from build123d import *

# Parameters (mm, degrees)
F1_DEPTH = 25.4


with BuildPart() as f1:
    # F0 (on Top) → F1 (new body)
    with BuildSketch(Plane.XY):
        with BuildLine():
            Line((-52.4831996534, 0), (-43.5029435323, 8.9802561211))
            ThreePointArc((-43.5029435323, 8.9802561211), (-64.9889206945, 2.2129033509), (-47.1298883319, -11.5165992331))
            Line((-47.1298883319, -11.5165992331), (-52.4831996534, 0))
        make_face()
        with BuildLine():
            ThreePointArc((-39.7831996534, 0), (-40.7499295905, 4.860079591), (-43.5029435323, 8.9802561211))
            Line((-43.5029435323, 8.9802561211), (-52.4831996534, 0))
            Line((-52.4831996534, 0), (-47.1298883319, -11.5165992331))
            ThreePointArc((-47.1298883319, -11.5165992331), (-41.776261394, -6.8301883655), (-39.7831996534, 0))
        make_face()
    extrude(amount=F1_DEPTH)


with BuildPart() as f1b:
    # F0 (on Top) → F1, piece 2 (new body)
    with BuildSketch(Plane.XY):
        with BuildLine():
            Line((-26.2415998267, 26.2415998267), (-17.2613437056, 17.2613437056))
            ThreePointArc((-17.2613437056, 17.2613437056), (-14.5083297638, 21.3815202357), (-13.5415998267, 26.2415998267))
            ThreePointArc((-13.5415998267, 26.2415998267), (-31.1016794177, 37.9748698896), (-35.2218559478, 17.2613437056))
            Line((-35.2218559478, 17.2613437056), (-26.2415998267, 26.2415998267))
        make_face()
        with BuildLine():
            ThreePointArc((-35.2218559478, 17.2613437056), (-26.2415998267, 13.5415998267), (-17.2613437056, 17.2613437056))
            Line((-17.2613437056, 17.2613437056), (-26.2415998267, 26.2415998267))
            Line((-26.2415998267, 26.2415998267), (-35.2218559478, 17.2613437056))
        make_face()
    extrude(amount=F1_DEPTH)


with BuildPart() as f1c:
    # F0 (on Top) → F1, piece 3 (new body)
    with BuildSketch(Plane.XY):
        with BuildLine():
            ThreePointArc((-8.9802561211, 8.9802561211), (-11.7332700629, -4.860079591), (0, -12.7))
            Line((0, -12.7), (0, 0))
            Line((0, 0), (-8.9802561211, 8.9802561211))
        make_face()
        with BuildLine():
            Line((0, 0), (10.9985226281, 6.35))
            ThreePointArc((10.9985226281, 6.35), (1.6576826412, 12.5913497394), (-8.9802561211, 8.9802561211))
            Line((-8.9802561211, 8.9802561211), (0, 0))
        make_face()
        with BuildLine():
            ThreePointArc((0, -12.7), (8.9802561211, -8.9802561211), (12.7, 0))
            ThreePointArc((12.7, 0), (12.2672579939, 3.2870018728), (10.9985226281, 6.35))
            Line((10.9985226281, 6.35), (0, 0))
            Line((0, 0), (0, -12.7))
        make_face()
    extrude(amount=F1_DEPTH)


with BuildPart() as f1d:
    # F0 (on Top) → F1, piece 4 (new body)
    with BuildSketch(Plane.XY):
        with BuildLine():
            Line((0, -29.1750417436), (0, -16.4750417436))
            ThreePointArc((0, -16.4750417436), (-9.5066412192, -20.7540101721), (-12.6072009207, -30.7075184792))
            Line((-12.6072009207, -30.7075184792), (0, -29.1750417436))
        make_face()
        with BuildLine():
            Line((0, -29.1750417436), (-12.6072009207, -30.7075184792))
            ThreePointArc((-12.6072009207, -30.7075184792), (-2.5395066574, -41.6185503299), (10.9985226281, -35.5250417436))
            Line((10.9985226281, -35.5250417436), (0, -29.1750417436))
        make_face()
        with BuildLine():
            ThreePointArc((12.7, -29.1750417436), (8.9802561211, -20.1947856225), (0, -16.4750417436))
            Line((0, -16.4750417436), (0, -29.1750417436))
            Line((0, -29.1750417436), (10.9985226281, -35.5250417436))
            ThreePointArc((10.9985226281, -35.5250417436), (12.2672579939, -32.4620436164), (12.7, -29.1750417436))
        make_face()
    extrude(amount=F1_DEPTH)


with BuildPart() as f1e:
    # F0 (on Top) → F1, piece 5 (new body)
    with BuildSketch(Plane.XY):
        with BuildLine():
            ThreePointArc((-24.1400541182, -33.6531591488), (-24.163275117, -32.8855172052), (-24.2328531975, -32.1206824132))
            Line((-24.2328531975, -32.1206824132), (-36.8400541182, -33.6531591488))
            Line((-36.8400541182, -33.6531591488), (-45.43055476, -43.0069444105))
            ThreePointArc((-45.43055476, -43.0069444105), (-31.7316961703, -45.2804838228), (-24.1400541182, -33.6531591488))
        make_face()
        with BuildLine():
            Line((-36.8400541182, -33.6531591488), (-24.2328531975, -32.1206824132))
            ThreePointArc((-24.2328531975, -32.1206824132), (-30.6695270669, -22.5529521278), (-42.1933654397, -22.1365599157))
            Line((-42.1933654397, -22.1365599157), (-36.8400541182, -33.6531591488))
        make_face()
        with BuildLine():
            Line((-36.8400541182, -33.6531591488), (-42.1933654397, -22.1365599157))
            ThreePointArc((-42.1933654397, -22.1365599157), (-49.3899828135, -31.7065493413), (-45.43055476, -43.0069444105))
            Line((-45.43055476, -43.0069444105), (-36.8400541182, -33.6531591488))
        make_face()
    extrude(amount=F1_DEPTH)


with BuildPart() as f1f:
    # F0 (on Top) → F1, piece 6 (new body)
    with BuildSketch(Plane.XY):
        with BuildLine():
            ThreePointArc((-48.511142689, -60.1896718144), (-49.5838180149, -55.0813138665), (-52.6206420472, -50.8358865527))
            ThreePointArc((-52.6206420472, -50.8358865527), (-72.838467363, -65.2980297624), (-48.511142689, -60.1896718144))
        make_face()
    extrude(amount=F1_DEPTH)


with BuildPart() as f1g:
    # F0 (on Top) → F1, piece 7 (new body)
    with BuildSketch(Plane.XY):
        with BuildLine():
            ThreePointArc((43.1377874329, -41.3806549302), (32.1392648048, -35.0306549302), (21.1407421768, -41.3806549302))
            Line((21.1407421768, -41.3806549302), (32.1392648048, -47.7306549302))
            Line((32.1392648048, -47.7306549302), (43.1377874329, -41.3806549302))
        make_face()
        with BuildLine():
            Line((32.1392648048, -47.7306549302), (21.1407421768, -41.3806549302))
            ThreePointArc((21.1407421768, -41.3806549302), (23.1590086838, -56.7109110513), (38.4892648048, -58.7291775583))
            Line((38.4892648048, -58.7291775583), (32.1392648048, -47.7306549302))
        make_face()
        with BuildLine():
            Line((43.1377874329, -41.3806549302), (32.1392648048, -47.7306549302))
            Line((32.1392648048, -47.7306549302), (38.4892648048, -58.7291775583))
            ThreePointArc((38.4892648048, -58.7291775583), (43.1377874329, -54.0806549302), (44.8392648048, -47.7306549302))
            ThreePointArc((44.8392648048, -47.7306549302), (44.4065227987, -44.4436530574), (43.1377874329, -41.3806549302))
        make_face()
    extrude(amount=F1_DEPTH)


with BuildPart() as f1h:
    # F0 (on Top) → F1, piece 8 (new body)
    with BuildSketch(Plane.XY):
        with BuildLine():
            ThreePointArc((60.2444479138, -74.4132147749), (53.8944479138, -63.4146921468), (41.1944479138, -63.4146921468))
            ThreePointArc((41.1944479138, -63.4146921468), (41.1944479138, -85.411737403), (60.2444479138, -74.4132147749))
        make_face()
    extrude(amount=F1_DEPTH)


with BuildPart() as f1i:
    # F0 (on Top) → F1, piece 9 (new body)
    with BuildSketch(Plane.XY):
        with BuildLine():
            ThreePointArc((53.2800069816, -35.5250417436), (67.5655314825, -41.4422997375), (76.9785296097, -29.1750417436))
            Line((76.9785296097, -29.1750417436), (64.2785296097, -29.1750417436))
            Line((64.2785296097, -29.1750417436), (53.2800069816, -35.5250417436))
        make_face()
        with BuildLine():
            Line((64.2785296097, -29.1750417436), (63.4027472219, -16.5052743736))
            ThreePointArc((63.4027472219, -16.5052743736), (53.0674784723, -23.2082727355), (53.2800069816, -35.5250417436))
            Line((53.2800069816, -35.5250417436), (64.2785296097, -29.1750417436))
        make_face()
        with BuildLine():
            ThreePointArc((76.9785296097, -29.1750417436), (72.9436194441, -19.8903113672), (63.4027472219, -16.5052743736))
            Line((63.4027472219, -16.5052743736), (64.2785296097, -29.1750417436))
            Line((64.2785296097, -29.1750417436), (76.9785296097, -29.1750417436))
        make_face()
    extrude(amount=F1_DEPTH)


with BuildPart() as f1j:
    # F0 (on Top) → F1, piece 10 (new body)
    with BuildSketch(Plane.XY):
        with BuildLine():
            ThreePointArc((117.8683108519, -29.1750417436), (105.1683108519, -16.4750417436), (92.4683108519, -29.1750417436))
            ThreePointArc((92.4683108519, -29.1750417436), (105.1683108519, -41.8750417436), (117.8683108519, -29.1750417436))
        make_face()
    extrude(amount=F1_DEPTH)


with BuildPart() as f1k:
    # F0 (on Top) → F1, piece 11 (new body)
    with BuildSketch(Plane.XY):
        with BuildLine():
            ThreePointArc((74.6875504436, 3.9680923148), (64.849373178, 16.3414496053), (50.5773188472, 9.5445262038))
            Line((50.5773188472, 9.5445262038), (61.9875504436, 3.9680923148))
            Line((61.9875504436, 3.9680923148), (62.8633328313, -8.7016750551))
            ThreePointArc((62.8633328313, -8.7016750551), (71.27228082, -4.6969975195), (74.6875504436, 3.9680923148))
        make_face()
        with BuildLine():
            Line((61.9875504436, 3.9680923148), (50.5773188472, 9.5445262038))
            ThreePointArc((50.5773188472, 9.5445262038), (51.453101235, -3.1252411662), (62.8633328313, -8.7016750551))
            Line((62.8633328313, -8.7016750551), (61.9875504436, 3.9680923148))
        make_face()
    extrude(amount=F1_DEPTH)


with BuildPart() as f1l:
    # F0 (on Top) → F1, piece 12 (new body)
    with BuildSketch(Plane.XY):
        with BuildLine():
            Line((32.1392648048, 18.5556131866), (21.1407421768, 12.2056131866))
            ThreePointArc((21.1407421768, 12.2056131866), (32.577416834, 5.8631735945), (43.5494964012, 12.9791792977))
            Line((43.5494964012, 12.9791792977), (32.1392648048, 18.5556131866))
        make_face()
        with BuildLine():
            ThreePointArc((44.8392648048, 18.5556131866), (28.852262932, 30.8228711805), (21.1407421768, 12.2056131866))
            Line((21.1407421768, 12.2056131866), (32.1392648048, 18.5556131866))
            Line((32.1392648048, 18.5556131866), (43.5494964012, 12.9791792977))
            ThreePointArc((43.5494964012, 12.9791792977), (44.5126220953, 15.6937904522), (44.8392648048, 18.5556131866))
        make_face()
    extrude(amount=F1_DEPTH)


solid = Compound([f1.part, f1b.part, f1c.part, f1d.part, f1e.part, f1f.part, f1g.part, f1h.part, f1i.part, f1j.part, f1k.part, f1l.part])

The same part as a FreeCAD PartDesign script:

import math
import FreeCAD as App
import Part
import Sketcher
Q = App.Units.Quantity

doc = App.newDocument("Part")
body = doc.addObject("PartDesign::Body", "Body")

# Sketch on XY plane
sketch1 = body.newObject("Sketcher::SketchObject", "Sketch")
sketch1.AttachmentSupport = (doc.getObject("XY_Plane"), [""])
sketch1.MapMode = "FlatFace"
sketch1.addGeometry([
    Part.ArcOfCircle(Part.Circle(App.Vector(-52, 0, 0), App.Vector(0, 0, 1), 13), math.radians(45), math.radians(295)),
    Part.ArcOfCircle(Part.Circle(App.Vector(-52, 0, 0), App.Vector(0, 0, 1), 13), math.radians(-65), math.radians(0)),
    Part.ArcOfCircle(Part.Circle(App.Vector(-52, 0, 0), App.Vector(0, 0, 1), 13), math.radians(0), math.radians(45)),
], False)
sketch1.addConstraint([
    Sketcher.Constraint("Tangent", 0, 2, 1, 1),
    Sketcher.Constraint("Tangent", 1, 2, 2, 1),
    Sketcher.Constraint("Tangent", 2, 2, 0, 1),
    Sketcher.Constraint("PointOnObject", 0, 3, -1),
    Sketcher.Constraint("PointOnObject", 1, 2, -1),
    Sketcher.Constraint("Radius", 0, Q("0.5 in")),
    Sketcher.Constraint("DistanceX", 0, 3, -1, 1, 52.4832),
    Sketcher.Constraint("DistanceY", 0, 2, -1, 1, 11.516599),
    Sketcher.Constraint("DistanceX", 2, 2, -1, 1, 43.502944),
])
pad1 = body.newObject("PartDesign::Pad", "Pad")
pad1.Profile = sketch1
pad1.Length = Q("1 in")
body2 = doc.addObject("PartDesign::Body", "Body001")

# Sketch on XY plane
sketch2 = body2.newObject("Sketcher::SketchObject", "Sketch001")
sketch2.AttachmentSupport = (doc.getObject("XY_Plane001"), [""])
sketch2.MapMode = "FlatFace"
sketch2.addGeometry([
    Part.ArcOfCircle(Part.Circle(App.Vector(-26, 26, 0), App.Vector(0, 0, 1), 13), math.radians(-45), math.radians(0)),
    Part.ArcOfCircle(Part.Circle(App.Vector(-26, 26, 0), App.Vector(0, 0, 1), 13), math.radians(0), math.radians(225)),
    Part.ArcOfCircle(Part.Circle(App.Vector(-26, 26, 0), App.Vector(0, 0, 1), 13), math.radians(-135), math.radians(-45)),
], False)
sketch2.addConstraint([
    Sketcher.Constraint("Tangent", 0, 2, 1, 1),
    Sketcher.Constraint("Tangent", 1, 2, 2, 1),
    Sketcher.Constraint("Tangent", 2, 2, 0, 1),
    Sketcher.Constraint("Horizontal", 2, 3, 0, 2),
    Sketcher.Constraint("Horizontal", 1, 2, 2, 2),
    Sketcher.Constraint("Radius", 0, Q("0.5 in")),
    Sketcher.Constraint("DistanceX", 0, 3, -1, 1, 26.2416),
    Sketcher.Constraint("DistanceY", -1, 1, 0, 3, 26.2416),
    Sketcher.Constraint("DistanceX", 1, 2, -1, 1, 35.221856),
])
pad2 = body2.newObject("PartDesign::Pad", "Pad001")
pad2.Profile = sketch2
pad2.Length = Q("1 in")
body3 = doc.addObject("PartDesign::Body", "Body002")

# Sketch on XY plane
sketch3 = body3.newObject("Sketcher::SketchObject", "Sketch002")
sketch3.AttachmentSupport = (doc.getObject("XY_Plane002"), [""])
sketch3.MapMode = "FlatFace"
sketch3.addGeometry([
    Part.ArcOfCircle(Part.Circle(App.Vector(0, 0, 0), App.Vector(0, 0, 1), 13), math.radians(135), math.radians(270)),
    Part.ArcOfCircle(Part.Circle(App.Vector(0, 0, 0), App.Vector(0, 0, 1), 13), math.radians(-90), math.radians(0)),
    Part.ArcOfCircle(Part.Circle(App.Vector(0, 0, 0), App.Vector(0, 0, 1), 13), math.radians(0), math.radians(30)),
    Part.ArcOfCircle(Part.Circle(App.Vector(0, 0, 0), App.Vector(0, 0, 1), 13), math.radians(30), math.radians(135)),
], False)
sketch3.addConstraint([
    Sketcher.Constraint("Tangent", 0, 2, 1, 1),
    Sketcher.Constraint("Tangent", 1, 2, 2, 1),
    Sketcher.Constraint("Tangent", 2, 2, 3, 1),
    Sketcher.Constraint("Tangent", 3, 2, 0, 1),
    Sketcher.Constraint("Coincident", 0, 3, -1, 1),
    Sketcher.Constraint("Equal", 0, 1),
    Sketcher.Constraint("PointOnObject", 0, 2, -2),
    Sketcher.Constraint("PointOnObject", 1, 2, -1),
    Sketcher.Constraint("Radius", 0, Q("0.5 in")),
    Sketcher.Constraint("DistanceY", -1, 1, 2, 2, Q("0.25 in")),
    Sketcher.Constraint("DistanceX", 3, 2, 2, 2, 19.978779),
])
pad3 = body3.newObject("PartDesign::Pad", "Pad002")
pad3.Profile = sketch3
pad3.Length = Q("1 in")
body4 = doc.addObject("PartDesign::Body", "Body003")

# Sketch on XY plane
sketch4 = body4.newObject("Sketcher::SketchObject", "Sketch003")
sketch4.AttachmentSupport = (doc.getObject("XY_Plane003"), [""])
sketch4.MapMode = "FlatFace"
sketch4.addGeometry([
    Part.ArcOfCircle(Part.Circle(App.Vector(0, -29, 0), App.Vector(0, 0, 1), 13), math.radians(-173), math.radians(0)),
    Part.ArcOfCircle(Part.Circle(App.Vector(0, -29, 0), App.Vector(0, 0, 1), 13), math.radians(0), math.radians(187)),
], False)
sketch4.addConstraint([
    Sketcher.Constraint("Tangent", 0, 1, 1, 2),
    Sketcher.Constraint("Coincident", 1, 1, 0, 2),
    Sketcher.Constraint("PointOnObject", 0, 3, -2),
    Sketcher.Constraint("Horizontal", 0, 3, 1, 1),
    Sketcher.Constraint("Radius", 0, Q("0.5 in")),
    Sketcher.Constraint("DistanceX", 0, 1, -1, 1, 12.607201),
    Sketcher.Constraint("DistanceY", 0, 3, -1, 1, 29.175042),
])
pad4 = body4.newObject("PartDesign::Pad", "Pad003")
pad4.Profile = sketch4
pad4.Length = Q("1 in")
body5 = doc.addObject("PartDesign::Body", "Body004")

# Sketch on XY plane
sketch5 = body5.newObject("Sketcher::SketchObject", "Sketch004")
sketch5.AttachmentSupport = (doc.getObject("XY_Plane004"), [""])
sketch5.MapMode = "FlatFace"
sketch5.addGeometry([
    Part.ArcOfCircle(Part.Circle(App.Vector(-36.8, -33.7, 0), App.Vector(0, 0, 1), 12.7), math.radians(0), math.radians(6.93)),
    Part.ArcOfCircle(Part.Circle(App.Vector(-36.8, -33.7, 0), App.Vector(0, 0, 1), 12.7), math.radians(7), math.radians(115)),
    Part.ArcOfCircle(Part.Circle(App.Vector(-36.8, -33.7, 0), App.Vector(0, 0, 1), 12.7), math.radians(115), math.radians(227)),
    Part.ArcOfCircle(Part.Circle(App.Vector(-36.8, -33.7, 0), App.Vector(0, 0, 1), 12.7), math.radians(-133), math.radians(0)),
], False)
sketch5.addConstraint([
    Sketcher.Constraint("Tangent", 0, 2, 1, 1),
    Sketcher.Constraint("Tangent", 1, 2, 2, 1),
    Sketcher.Constraint("Tangent", 2, 2, 3, 1),
    Sketcher.Constraint("Tangent", 3, 2, 0, 1),
    Sketcher.Constraint("Equal", 0, 1),
    Sketcher.Constraint("Horizontal", 2, 3, 3, 2),
    Sketcher.Constraint("Radius", 0, Q("0.5 in")),
    Sketcher.Constraint("DistanceX", 1, 3, 0, 2, 12.607201),
    Sketcher.Constraint("DistanceY", 0, 3, 1, 2, 11.516599),
    Sketcher.Constraint("DistanceX", 2, 2, 0, 3, 8.590501),
    Sketcher.Constraint("DistanceY", 0, 3, -1, 1, 33.653159),
    Sketcher.Constraint("DistanceX", 0, 3, -1, 1, 36.840054),
])
pad5 = body5.newObject("PartDesign::Pad", "Pad004")
pad5.Profile = sketch5
pad5.Length = Q("1 in")
body6 = doc.addObject("PartDesign::Body", "Body005")

# Sketch on XY plane
sketch6 = body6.newObject("Sketcher::SketchObject", "Sketch005")
sketch6.AttachmentSupport = (doc.getObject("XY_Plane005"), [""])
sketch6.MapMode = "FlatFace"
sketch6.addGeometry([
    Part.ArcOfCircle(Part.Circle(App.Vector(-61, -60, 0), App.Vector(0, 0, 1), 13), math.radians(0), math.radians(47)),
    Part.ArcOfCircle(Part.Circle(App.Vector(-61, -60, 0), App.Vector(0, 0, 1), 13), math.radians(47), math.radians(360)),
], False)
sketch6.addConstraint([
    Sketcher.Constraint("Tangent", 0, 1, 1, 2),
    Sketcher.Constraint("Coincident", 1, 1, 0, 2),
    Sketcher.Constraint("Horizontal", 1, 3, 0, 1),
    Sketcher.Constraint("Radius", 0, Q("0.5 in")),
    Sketcher.Constraint("DistanceX", 1, 1, 0, 1, 4.109499),
    Sketcher.Constraint("DistanceY", 0, 3, -1, 1, 60.189672),
    Sketcher.Constraint("DistanceX", 0, 3, -1, 1, 61.211143),
])
pad6 = body6.newObject("PartDesign::Pad", "Pad005")
pad6.Profile = sketch6
pad6.Length = Q("1 in")
body7 = doc.addObject("PartDesign::Body", "Body006")

# Sketch on XY plane
sketch7 = body7.newObject("Sketcher::SketchObject", "Sketch006")
sketch7.AttachmentSupport = (doc.getObject("XY_Plane006"), [""])
sketch7.MapMode = "FlatFace"
sketch7.addGeometry([
    Part.ArcOfCircle(Part.Circle(App.Vector(32, -48, 0), App.Vector(0, 0, 1), 13), math.radians(30), math.radians(150)),
    Part.ArcOfCircle(Part.Circle(App.Vector(32, -48, 0), App.Vector(0, 0, 1), 13), math.radians(150), math.radians(360)),
    Part.ArcOfCircle(Part.Circle(App.Vector(32, -48, 0), App.Vector(0, 0, 1), 13), math.radians(0), math.radians(30)),
], False)
sketch7.addConstraint([
    Sketcher.Constraint("Tangent", 0, 2, 1, 1),
    Sketcher.Constraint("Tangent", 1, 2, 2, 1),
    Sketcher.Constraint("Tangent", 2, 2, 0, 1),
    Sketcher.Constraint("Horizontal", 2, 3, 1, 2),
    Sketcher.Constraint("Horizontal", 0, 2, 2, 2),
    Sketcher.Constraint("Radius", 0, Q("0.5 in")),
    Sketcher.Constraint("DistanceY", 0, 3, 0, 2, Q("0.25 in")),
    Sketcher.Constraint("DistanceX", -1, 1, 0, 3, 32.139265),
    Sketcher.Constraint("DistanceY", 0, 3, -1, 1, 47.730655),
])
pad7 = body7.newObject("PartDesign::Pad", "Pad006")
pad7.Profile = sketch7
pad7.Length = Q("1 in")
body8 = doc.addObject("PartDesign::Body", "Body007")

# Sketch on XY plane
sketch8 = body8.newObject("Sketcher::SketchObject", "Sketch007")
sketch8.AttachmentSupport = (doc.getObject("XY_Plane007"), [""])
sketch8.MapMode = "FlatFace"
sketch8.addGeometry([
    Part.ArcOfCircle(Part.Circle(App.Vector(48, -74, 0), App.Vector(0, 0, 1), 13), math.radians(0), math.radians(120)),
    Part.ArcOfCircle(Part.Circle(App.Vector(48, -74, 0), App.Vector(0, 0, 1), 13), math.radians(120), math.radians(360)),
], False)
sketch8.addConstraint([
    Sketcher.Constraint("Tangent", 0, 1, 1, 2),
    Sketcher.Constraint("Coincident", 1, 1, 0, 2),
    Sketcher.Constraint("Horizontal", 1, 3, 0, 1),
    Sketcher.Constraint("Radius", 0, Q("0.5 in")),
    Sketcher.Constraint("DistanceX", 1, 1, 0, 3, Q("0.25 in")),
    Sketcher.Constraint("DistanceX", -1, 1, 0, 3, 47.544448),
    Sketcher.Constraint("DistanceY", 0, 3, -1, 1, 74.413215),
])
pad8 = body8.newObject("PartDesign::Pad", "Pad007")
pad8.Profile = sketch8
pad8.Length = Q("1 in")
body9 = doc.addObject("PartDesign::Body", "Body008")

# Sketch on XY plane
sketch9 = body9.newObject("Sketcher::SketchObject", "Sketch008")
sketch9.AttachmentSupport = (doc.getObject("XY_Plane008"), [""])
sketch9.MapMode = "FlatFace"
sketch9.addGeometry([
    Part.ArcOfCircle(Part.Circle(App.Vector(64, -29, 0), App.Vector(0, 0, 1), 13), math.radians(-150), math.radians(0)),
    Part.ArcOfCircle(Part.Circle(App.Vector(64, -29, 0), App.Vector(0, 0, 1), 13), math.radians(0), math.radians(94)),
    Part.ArcOfCircle(Part.Circle(App.Vector(64, -29, 0), App.Vector(0, 0, 1), 13), math.radians(94), math.radians(210)),
], False)
sketch9.addConstraint([
    Sketcher.Constraint("Tangent", 0, 2, 1, 1),
    Sketcher.Constraint("Tangent", 1, 2, 2, 1),
    Sketcher.Constraint("Tangent", 2, 2, 0, 1),
    Sketcher.Constraint("Horizontal", 2, 3, 0, 2),
    Sketcher.Constraint("Radius", 0, Q("0.5 in")),
    Sketcher.Constraint("DistanceY", 2, 2, 0, 3, Q("0.25 in")),
    Sketcher.Constraint("DistanceX", -1, 1, 0, 3, 64.27853),
    Sketcher.Constraint("DistanceY", 0, 3, -1, 1, 29.175042),
    Sketcher.Constraint("DistanceX", 2, 2, 1, 2, 10.12274),
])
pad9 = body9.newObject("PartDesign::Pad", "Pad008")
pad9.Profile = sketch9
pad9.Length = Q("1 in")
body10 = doc.addObject("PartDesign::Body", "Body009")

# Sketch on XY plane
sketch10 = body10.newObject("Sketcher::SketchObject", "Sketch009")
sketch10.AttachmentSupport = (doc.getObject("XY_Plane009"), [""])
sketch10.MapMode = "FlatFace"
sketch10.addGeometry(Part.Circle(App.Vector(105, -29, 0), App.Vector(0, 0, 1), 13), False)
sketch10.addConstraint([
    Sketcher.Constraint("Diameter", 0, Q("1 in")),
    Sketcher.Constraint("DistanceX", -1, 1, 0, 3, 105.168311),
    Sketcher.Constraint("DistanceY", 0, 3, -1, 1, 29.175042),
])
pad10 = body10.newObject("PartDesign::Pad", "Pad009")
pad10.Profile = sketch10
pad10.Length = Q("1 in")
body11 = doc.addObject("PartDesign::Body", "Body010")

# Sketch on XY plane
sketch11 = body11.newObject("Sketcher::SketchObject", "Sketch010")
sketch11.AttachmentSupport = (doc.getObject("XY_Plane010"), [""])
sketch11.MapMode = "FlatFace"
sketch11.addGeometry([
    Part.ArcOfCircle(Part.Circle(App.Vector(61.98755, 3.968092, 0), App.Vector(0, 0, 1), 12.7), math.radians(-86.045788), math.radians(153.954212)),
    Part.ArcOfCircle(Part.Circle(App.Vector(61.98755, 3.968092, 0), App.Vector(0, 0, 1), 12.7), math.radians(153.954212), math.radians(273.954212)),
], False)
sketch11.addConstraint([
    Sketcher.Constraint("Tangent", 0, 1, 1, 2),
    Sketcher.Constraint("Coincident", 1, 1, 0, 2),
    Sketcher.Constraint("Radius", 0, Q("0.5 in")),
    Sketcher.Constraint("DistanceY", 0, 1, 1, 1, 18.246201),
    Sketcher.Constraint("DistanceX", -1, 1, 0, 3, 61.98755),
    Sketcher.Constraint("DistanceX", -1, 1, 1, 1, 50.577319),
    Sketcher.Constraint("DistanceY", -1, 1, 0, 3, 3.968092),
])
pad11 = body11.newObject("PartDesign::Pad", "Pad010")
pad11.Profile = sketch11
pad11.Length = Q("1 in")
body12 = doc.addObject("PartDesign::Body", "Body011")

# Sketch on XY plane
sketch12 = body12.newObject("Sketcher::SketchObject", "Sketch011")
sketch12.AttachmentSupport = (doc.getObject("XY_Plane011"), [""])
sketch12.MapMode = "FlatFace"
sketch12.addGeometry([
    Part.ArcOfCircle(Part.Circle(App.Vector(32, 19, 0), App.Vector(0, 0, 1), 13), math.radians(-150), math.radians(-26)),
    Part.ArcOfCircle(Part.Circle(App.Vector(32, 19, 0), App.Vector(0, 0, 1), 13), math.radians(-26), math.radians(0)),
    Part.ArcOfCircle(Part.Circle(App.Vector(32, 19, 0), App.Vector(0, 0, 1), 13), math.radians(0), math.radians(210)),
], False)
sketch12.addConstraint([
    Sketcher.Constraint("Tangent", 0, 2, 1, 1),
    Sketcher.Constraint("Tangent", 1, 2, 2, 1),
    Sketcher.Constraint("Tangent", 2, 2, 0, 1),
    Sketcher.Constraint("Horizontal", 2, 3, 1, 2),
    Sketcher.Constraint("Radius", 0, Q("0.5 in")),
    Sketcher.Constraint("DistanceY", 2, 2, 0, 3, Q("0.25 in")),
    Sketcher.Constraint("DistanceY", -1, 1, 0, 2, 12.979179),
    Sketcher.Constraint("DistanceX", 1, 3, 0, 2, 11.410232),
    Sketcher.Constraint("DistanceX", -1, 1, 0, 3, 32.139265),
])
pad12 = body12.newObject("PartDesign::Pad", "Pad011")
pad12.Profile = sketch12
pad12.Length = Q("1 in")

doc.recompute()
